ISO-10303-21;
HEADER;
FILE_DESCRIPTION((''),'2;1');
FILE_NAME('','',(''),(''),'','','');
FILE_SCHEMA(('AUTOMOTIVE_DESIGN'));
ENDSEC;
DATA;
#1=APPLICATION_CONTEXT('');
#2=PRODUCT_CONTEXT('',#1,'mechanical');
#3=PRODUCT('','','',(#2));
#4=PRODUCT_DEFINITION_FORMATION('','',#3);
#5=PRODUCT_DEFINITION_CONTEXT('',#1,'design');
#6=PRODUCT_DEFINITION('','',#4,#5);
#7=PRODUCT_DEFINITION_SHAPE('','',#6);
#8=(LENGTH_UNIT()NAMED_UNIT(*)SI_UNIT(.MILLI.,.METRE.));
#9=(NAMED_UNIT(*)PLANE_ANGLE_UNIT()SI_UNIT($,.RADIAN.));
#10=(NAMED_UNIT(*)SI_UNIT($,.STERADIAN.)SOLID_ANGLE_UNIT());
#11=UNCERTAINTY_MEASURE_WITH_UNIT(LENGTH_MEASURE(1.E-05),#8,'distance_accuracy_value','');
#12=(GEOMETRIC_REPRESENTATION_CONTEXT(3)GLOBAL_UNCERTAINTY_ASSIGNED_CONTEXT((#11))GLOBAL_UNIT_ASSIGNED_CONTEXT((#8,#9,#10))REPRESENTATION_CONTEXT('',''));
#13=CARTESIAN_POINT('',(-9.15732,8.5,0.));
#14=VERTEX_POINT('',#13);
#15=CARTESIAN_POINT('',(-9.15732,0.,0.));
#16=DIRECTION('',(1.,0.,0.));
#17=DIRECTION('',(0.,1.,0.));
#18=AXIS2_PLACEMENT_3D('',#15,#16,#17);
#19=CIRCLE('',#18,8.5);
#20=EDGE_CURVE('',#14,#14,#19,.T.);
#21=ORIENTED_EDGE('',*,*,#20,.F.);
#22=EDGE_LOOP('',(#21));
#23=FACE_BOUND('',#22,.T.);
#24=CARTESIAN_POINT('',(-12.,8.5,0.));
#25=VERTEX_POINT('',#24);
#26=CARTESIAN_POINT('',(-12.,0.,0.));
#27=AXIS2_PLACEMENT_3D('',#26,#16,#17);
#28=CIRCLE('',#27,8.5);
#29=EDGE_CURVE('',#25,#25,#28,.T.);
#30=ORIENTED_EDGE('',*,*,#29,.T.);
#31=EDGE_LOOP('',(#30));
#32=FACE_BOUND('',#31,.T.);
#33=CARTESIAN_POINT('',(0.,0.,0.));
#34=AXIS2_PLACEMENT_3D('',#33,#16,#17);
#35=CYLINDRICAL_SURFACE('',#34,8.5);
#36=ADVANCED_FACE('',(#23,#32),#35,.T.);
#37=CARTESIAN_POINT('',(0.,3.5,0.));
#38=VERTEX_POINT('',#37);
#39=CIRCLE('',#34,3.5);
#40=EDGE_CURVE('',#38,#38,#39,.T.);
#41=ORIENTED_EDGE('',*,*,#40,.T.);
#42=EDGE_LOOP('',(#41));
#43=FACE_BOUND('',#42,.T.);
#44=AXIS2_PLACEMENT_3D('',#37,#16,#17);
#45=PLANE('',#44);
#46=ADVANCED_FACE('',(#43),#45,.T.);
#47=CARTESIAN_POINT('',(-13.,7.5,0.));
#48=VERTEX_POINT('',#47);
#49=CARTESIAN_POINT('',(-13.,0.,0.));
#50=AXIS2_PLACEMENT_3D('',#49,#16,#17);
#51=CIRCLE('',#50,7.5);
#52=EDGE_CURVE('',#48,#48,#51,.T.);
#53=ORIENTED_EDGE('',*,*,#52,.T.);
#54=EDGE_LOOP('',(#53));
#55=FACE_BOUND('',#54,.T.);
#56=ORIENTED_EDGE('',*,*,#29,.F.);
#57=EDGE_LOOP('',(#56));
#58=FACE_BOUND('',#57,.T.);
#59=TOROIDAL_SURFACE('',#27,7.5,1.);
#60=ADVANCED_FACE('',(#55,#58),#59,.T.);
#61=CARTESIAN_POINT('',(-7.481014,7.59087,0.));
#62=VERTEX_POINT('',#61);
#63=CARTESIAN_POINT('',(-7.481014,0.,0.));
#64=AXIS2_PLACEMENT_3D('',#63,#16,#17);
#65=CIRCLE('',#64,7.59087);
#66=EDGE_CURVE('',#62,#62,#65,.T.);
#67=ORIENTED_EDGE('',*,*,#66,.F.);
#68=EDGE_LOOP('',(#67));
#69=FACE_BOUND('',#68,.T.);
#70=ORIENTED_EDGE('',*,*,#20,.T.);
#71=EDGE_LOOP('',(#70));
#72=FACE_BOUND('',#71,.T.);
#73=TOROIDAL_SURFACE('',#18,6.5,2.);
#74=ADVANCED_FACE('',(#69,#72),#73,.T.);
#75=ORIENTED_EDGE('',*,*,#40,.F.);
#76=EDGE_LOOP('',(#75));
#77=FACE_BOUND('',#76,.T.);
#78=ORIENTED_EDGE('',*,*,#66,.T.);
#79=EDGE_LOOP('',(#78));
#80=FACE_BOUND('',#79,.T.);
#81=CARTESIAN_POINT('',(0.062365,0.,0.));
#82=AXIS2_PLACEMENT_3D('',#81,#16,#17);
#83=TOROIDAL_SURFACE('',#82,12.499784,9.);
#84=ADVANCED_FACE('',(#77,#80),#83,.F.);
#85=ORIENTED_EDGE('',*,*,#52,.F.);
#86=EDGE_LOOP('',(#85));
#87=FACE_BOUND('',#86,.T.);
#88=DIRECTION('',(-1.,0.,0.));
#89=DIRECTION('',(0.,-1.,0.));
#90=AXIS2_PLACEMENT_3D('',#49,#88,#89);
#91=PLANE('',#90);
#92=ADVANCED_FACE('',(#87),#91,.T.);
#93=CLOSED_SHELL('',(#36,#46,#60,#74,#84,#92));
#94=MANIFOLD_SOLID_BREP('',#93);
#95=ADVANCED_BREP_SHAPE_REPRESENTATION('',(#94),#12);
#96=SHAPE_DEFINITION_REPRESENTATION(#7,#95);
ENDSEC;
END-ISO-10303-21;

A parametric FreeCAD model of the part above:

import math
import FreeCAD as App
import Part
import Sketcher
from FreeCAD import Vector
Q = App.Units.Quantity

doc = App.newDocument("Part")
body = doc.addObject("PartDesign::Body", "Body")

# Sketch on XY plane
sketch1 = body.newObject("Sketcher::SketchObject", "Sketch")
sketch1.AttachmentSupport = (doc.getObject("XY_Plane"), [""])
sketch1.MapMode = "FlatFace"
sketch1.addGeometry(Part.LineSegment(Vector(-13, 7.5, 0), Vector(-13, 0, 0)), False)
sketch1.addGeometry(Part.LineSegment(Vector(-13, 0, 0), Vector(0, 0, 0)), False)
sketch1.addGeometry(Part.LineSegment(Vector(0, 0, 0), Vector(0, 3.5, 0)), False)
sketch1.addGeometry(Part.ArcOfCircle(Part.Circle(Vector(0.1, 12.5, 0), Vector(0, 0, 1), 9), math.radians(-147), math.radians(-90)), False)
sketch1.addGeometry(Part.ArcOfCircle(Part.Circle(Vector(-9.2, 6.5, 0), Vector(0, 0, 1), 2), math.radians(33), math.radians(90)), False)
sketch1.addGeometry(Part.LineSegment(Vector(-9.2, 8.5, 0), Vector(-12, 8.5, 0)), False)
sketch1.addGeometry(Part.ArcOfCircle(Part.Circle(Vector(-12, 7.5, 0), Vector(0, 0, 1), 1), math.radians(90), math.radians(180)), False)
sketch1.addConstraint(Sketcher.Constraint("Coincident", 0, 2, 1, 1))
sketch1.addConstraint(Sketcher.Constraint("Coincident", 1, 2, 2, 1))
sketch1.addConstraint(Sketcher.Constraint("Coincident", 2, 2, 3, 2))
sketch1.addConstraint(Sketcher.Constraint("Tangent", 3, 1, 4, 1))
sketch1.addConstraint(Sketcher.Constraint("Tangent", 4, 2, 5, 1))
sketch1.addConstraint(Sketcher.Constraint("Tangent", 5, 2, 6, 1))
sketch1.addConstraint(Sketcher.Constraint("Tangent", 6, 2, 0, 1))
sketch1.addConstraint(Sketcher.Constraint("Vertical", 0))
sketch1.addConstraint(Sketcher.Constraint("Horizontal", 1))
sketch1.addConstraint(Sketcher.Constraint("Vertical", 2))
sketch1.addConstraint(Sketcher.Constraint("Horizontal", 5))
sketch1.addConstraint(Sketcher.Constraint("Coincident", 1, 2, -1, 1))
sketch1.addConstraint(Sketcher.Constraint("Radius", 3, Q("9 mm")))
sketch1.addConstraint(Sketcher.Constraint("Radius", 4, Q("2 mm")))
sketch1.addConstraint(Sketcher.Constraint("Radius", 6, Q("1 mm")))
sketch1.addConstraint(Sketcher.Constraint("DistanceX", 1, 1, 1, 2, Q("13 mm")))
sketch1.addConstraint(Sketcher.Constraint("DistanceY", 0, 2, 0, 1, Q("7.5 mm")))
sketch1.addConstraint(Sketcher.Constraint("DistanceY", 2, 1, 2, 2, Q("3.5 mm")))
sketch1.addConstraint(Sketcher.Constraint("DistanceX", 5, 2, 5, 1, Q("2.84268 mm")))
revolution = body.newObject("PartDesign::Revolution", "Revolution")
revolution.Profile = sketch1
revolution.ReferenceAxis = (sketch1, ["H_Axis"])
revolution.Angle = 360

doc.recompute()
